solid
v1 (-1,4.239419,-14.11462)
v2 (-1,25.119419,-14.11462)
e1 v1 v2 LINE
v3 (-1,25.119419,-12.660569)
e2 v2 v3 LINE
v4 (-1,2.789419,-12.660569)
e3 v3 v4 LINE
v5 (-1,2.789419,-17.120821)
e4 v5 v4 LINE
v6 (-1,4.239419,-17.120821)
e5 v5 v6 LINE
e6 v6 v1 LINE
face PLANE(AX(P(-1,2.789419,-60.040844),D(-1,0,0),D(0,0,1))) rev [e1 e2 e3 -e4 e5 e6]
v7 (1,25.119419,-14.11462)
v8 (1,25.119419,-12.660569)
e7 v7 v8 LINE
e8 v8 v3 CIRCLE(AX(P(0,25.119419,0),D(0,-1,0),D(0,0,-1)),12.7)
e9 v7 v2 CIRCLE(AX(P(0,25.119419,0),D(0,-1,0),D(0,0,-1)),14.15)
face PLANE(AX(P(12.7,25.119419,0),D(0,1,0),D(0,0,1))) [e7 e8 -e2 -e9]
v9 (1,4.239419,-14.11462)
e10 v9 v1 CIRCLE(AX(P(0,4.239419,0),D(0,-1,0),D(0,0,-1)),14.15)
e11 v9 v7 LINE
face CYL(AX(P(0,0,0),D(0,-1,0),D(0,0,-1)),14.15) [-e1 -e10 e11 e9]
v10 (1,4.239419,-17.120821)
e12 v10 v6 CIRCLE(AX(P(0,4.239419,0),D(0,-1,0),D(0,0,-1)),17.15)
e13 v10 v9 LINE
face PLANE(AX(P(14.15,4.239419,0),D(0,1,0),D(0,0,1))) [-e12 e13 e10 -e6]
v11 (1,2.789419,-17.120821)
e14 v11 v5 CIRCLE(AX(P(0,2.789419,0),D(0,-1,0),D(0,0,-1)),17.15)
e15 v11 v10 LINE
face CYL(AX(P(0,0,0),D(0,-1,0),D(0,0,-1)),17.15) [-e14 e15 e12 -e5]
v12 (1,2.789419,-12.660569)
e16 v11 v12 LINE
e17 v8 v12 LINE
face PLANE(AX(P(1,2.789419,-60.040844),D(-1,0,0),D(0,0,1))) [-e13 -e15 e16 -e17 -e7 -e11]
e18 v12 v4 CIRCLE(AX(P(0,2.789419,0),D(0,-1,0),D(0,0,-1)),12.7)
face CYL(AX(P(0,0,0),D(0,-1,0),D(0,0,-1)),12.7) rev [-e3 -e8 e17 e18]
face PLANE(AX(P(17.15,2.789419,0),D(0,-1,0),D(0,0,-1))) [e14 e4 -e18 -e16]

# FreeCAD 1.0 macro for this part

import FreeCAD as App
import Part
import Sketcher

V = App.Vector
Q = App.Units.Quantity


def add_polygon(sketch, points):
    """Adds a closed chain of lines whose ends are joined by coincident constraints."""
    first, n = sketch.GeometryCount, len(points)
    for a, b in zip(points, points[1:] + points[:1]):
        sketch.addGeometry(Part.LineSegment(App.Vector(*a, 0), App.Vector(*b, 0)), False)
    for i in range(n):
        sketch.addConstraint(Sketcher.Constraint("Coincident", first + i, 2, first + (i + 1) % n, 1))

doc = App.newDocument("Part")
body = doc.addObject("PartDesign::Body", "Body")

# Sketch on XY plane
sketch1 = body.newObject("Sketcher::SketchObject", "Sketch")
sketch1.AttachmentSupport = (doc.getObject("XY_Plane"), [""])
sketch1.MapMode = "FlatFace"
add_polygon(sketch1, [(12.7, 25.119419), (12.7, 2.789419), (17.15, 2.789419), (17.15, 4.239419), (14.15, 4.239419), (14.15, 25.119419)])  # lines 0-5
sketch1.addConstraint(Sketcher.Constraint("Vertical", 0))
sketch1.addConstraint(Sketcher.Constraint("Horizontal", 1))
sketch1.addConstraint(Sketcher.Constraint("Vertical", 2))
sketch1.addConstraint(Sketcher.Constraint("Horizontal", 3))
sketch1.addConstraint(Sketcher.Constraint("Vertical", 4))
sketch1.addConstraint(Sketcher.Constraint("Horizontal", 5))
sketch1.addConstraint(Sketcher.Constraint("Equal", 5, 2))
sketch1.addConstraint(Sketcher.Constraint("DistanceX", 3, 2, 3, 1, Q("3 mm")))
sketch1.addConstraint(Sketcher.Constraint("DistanceX", 1, 1, 1, 2, Q("4.45 mm")))
sketch1.addConstraint(Sketcher.Constraint("DistanceY", 0, 2, 0, 1, Q("22.33 mm")))
sketch1.addConstraint(Sketcher.Constraint("DistanceX", -1, 1, 0, 2, Q("12.7 mm")))
sketch1.addConstraint(Sketcher.Constraint("DistanceY", -1, 1, 0, 2, Q("2.789419 mm")))
revolution = body.newObject("PartDesign::Revolution", "Revolution")
revolution.Profile = sketch1
revolution.ReferenceAxis = (sketch1, ["V_Axis"])
revolution.Angle = 360

# Sketch on XZ plane
sketch2 = body.newObject("Sketcher::SketchObject", "Sketch001")
sketch2.AttachmentSupport = (doc.getObject("XZ_Plane"), [""])
sketch2.MapMode = "FlatFace"
sketch2.AttachmentOffset = App.Placement(V(0, 0, -25.119419), App.Rotation())
add_polygon(sketch2, [(-1, -60.040844), (-1, 6.05263), (1, 6.05263), (1, -60.040844)])  # lines 0-3
sketch2.addConstraint(Sketcher.Constraint("Vertical", 0))
sketch2.addConstraint(Sketcher.Constraint("Horizontal", 1))
sketch2.addConstraint(Sketcher.Constraint("Vertical", 2))
sketch2.addConstraint(Sketcher.Constraint("Horizontal", 3))
sketch2.addConstraint(Sketcher.Constraint("DistanceX", 1, 1, 1, 2, Q("2 mm")))
sketch2.addConstraint(Sketcher.Constraint("DistanceX", 0, 2, -1, 1, Q("1 mm")))
sketch2.addConstraint(Sketcher.Constraint("DistanceY", 0, 1, 0, 2, Q("66.093474 mm")))
sketch2.addConstraint(Sketcher.Constraint("DistanceY", -1, 1, 0, 2, Q("6.05263 mm")))
pocket1 = body.newObject("PartDesign::Pocket", "Pocket")
pocket1.Profile = sketch2
pocket1.Type = "ThroughAll"
pocket1.Reversed = True

doc.recompute()
